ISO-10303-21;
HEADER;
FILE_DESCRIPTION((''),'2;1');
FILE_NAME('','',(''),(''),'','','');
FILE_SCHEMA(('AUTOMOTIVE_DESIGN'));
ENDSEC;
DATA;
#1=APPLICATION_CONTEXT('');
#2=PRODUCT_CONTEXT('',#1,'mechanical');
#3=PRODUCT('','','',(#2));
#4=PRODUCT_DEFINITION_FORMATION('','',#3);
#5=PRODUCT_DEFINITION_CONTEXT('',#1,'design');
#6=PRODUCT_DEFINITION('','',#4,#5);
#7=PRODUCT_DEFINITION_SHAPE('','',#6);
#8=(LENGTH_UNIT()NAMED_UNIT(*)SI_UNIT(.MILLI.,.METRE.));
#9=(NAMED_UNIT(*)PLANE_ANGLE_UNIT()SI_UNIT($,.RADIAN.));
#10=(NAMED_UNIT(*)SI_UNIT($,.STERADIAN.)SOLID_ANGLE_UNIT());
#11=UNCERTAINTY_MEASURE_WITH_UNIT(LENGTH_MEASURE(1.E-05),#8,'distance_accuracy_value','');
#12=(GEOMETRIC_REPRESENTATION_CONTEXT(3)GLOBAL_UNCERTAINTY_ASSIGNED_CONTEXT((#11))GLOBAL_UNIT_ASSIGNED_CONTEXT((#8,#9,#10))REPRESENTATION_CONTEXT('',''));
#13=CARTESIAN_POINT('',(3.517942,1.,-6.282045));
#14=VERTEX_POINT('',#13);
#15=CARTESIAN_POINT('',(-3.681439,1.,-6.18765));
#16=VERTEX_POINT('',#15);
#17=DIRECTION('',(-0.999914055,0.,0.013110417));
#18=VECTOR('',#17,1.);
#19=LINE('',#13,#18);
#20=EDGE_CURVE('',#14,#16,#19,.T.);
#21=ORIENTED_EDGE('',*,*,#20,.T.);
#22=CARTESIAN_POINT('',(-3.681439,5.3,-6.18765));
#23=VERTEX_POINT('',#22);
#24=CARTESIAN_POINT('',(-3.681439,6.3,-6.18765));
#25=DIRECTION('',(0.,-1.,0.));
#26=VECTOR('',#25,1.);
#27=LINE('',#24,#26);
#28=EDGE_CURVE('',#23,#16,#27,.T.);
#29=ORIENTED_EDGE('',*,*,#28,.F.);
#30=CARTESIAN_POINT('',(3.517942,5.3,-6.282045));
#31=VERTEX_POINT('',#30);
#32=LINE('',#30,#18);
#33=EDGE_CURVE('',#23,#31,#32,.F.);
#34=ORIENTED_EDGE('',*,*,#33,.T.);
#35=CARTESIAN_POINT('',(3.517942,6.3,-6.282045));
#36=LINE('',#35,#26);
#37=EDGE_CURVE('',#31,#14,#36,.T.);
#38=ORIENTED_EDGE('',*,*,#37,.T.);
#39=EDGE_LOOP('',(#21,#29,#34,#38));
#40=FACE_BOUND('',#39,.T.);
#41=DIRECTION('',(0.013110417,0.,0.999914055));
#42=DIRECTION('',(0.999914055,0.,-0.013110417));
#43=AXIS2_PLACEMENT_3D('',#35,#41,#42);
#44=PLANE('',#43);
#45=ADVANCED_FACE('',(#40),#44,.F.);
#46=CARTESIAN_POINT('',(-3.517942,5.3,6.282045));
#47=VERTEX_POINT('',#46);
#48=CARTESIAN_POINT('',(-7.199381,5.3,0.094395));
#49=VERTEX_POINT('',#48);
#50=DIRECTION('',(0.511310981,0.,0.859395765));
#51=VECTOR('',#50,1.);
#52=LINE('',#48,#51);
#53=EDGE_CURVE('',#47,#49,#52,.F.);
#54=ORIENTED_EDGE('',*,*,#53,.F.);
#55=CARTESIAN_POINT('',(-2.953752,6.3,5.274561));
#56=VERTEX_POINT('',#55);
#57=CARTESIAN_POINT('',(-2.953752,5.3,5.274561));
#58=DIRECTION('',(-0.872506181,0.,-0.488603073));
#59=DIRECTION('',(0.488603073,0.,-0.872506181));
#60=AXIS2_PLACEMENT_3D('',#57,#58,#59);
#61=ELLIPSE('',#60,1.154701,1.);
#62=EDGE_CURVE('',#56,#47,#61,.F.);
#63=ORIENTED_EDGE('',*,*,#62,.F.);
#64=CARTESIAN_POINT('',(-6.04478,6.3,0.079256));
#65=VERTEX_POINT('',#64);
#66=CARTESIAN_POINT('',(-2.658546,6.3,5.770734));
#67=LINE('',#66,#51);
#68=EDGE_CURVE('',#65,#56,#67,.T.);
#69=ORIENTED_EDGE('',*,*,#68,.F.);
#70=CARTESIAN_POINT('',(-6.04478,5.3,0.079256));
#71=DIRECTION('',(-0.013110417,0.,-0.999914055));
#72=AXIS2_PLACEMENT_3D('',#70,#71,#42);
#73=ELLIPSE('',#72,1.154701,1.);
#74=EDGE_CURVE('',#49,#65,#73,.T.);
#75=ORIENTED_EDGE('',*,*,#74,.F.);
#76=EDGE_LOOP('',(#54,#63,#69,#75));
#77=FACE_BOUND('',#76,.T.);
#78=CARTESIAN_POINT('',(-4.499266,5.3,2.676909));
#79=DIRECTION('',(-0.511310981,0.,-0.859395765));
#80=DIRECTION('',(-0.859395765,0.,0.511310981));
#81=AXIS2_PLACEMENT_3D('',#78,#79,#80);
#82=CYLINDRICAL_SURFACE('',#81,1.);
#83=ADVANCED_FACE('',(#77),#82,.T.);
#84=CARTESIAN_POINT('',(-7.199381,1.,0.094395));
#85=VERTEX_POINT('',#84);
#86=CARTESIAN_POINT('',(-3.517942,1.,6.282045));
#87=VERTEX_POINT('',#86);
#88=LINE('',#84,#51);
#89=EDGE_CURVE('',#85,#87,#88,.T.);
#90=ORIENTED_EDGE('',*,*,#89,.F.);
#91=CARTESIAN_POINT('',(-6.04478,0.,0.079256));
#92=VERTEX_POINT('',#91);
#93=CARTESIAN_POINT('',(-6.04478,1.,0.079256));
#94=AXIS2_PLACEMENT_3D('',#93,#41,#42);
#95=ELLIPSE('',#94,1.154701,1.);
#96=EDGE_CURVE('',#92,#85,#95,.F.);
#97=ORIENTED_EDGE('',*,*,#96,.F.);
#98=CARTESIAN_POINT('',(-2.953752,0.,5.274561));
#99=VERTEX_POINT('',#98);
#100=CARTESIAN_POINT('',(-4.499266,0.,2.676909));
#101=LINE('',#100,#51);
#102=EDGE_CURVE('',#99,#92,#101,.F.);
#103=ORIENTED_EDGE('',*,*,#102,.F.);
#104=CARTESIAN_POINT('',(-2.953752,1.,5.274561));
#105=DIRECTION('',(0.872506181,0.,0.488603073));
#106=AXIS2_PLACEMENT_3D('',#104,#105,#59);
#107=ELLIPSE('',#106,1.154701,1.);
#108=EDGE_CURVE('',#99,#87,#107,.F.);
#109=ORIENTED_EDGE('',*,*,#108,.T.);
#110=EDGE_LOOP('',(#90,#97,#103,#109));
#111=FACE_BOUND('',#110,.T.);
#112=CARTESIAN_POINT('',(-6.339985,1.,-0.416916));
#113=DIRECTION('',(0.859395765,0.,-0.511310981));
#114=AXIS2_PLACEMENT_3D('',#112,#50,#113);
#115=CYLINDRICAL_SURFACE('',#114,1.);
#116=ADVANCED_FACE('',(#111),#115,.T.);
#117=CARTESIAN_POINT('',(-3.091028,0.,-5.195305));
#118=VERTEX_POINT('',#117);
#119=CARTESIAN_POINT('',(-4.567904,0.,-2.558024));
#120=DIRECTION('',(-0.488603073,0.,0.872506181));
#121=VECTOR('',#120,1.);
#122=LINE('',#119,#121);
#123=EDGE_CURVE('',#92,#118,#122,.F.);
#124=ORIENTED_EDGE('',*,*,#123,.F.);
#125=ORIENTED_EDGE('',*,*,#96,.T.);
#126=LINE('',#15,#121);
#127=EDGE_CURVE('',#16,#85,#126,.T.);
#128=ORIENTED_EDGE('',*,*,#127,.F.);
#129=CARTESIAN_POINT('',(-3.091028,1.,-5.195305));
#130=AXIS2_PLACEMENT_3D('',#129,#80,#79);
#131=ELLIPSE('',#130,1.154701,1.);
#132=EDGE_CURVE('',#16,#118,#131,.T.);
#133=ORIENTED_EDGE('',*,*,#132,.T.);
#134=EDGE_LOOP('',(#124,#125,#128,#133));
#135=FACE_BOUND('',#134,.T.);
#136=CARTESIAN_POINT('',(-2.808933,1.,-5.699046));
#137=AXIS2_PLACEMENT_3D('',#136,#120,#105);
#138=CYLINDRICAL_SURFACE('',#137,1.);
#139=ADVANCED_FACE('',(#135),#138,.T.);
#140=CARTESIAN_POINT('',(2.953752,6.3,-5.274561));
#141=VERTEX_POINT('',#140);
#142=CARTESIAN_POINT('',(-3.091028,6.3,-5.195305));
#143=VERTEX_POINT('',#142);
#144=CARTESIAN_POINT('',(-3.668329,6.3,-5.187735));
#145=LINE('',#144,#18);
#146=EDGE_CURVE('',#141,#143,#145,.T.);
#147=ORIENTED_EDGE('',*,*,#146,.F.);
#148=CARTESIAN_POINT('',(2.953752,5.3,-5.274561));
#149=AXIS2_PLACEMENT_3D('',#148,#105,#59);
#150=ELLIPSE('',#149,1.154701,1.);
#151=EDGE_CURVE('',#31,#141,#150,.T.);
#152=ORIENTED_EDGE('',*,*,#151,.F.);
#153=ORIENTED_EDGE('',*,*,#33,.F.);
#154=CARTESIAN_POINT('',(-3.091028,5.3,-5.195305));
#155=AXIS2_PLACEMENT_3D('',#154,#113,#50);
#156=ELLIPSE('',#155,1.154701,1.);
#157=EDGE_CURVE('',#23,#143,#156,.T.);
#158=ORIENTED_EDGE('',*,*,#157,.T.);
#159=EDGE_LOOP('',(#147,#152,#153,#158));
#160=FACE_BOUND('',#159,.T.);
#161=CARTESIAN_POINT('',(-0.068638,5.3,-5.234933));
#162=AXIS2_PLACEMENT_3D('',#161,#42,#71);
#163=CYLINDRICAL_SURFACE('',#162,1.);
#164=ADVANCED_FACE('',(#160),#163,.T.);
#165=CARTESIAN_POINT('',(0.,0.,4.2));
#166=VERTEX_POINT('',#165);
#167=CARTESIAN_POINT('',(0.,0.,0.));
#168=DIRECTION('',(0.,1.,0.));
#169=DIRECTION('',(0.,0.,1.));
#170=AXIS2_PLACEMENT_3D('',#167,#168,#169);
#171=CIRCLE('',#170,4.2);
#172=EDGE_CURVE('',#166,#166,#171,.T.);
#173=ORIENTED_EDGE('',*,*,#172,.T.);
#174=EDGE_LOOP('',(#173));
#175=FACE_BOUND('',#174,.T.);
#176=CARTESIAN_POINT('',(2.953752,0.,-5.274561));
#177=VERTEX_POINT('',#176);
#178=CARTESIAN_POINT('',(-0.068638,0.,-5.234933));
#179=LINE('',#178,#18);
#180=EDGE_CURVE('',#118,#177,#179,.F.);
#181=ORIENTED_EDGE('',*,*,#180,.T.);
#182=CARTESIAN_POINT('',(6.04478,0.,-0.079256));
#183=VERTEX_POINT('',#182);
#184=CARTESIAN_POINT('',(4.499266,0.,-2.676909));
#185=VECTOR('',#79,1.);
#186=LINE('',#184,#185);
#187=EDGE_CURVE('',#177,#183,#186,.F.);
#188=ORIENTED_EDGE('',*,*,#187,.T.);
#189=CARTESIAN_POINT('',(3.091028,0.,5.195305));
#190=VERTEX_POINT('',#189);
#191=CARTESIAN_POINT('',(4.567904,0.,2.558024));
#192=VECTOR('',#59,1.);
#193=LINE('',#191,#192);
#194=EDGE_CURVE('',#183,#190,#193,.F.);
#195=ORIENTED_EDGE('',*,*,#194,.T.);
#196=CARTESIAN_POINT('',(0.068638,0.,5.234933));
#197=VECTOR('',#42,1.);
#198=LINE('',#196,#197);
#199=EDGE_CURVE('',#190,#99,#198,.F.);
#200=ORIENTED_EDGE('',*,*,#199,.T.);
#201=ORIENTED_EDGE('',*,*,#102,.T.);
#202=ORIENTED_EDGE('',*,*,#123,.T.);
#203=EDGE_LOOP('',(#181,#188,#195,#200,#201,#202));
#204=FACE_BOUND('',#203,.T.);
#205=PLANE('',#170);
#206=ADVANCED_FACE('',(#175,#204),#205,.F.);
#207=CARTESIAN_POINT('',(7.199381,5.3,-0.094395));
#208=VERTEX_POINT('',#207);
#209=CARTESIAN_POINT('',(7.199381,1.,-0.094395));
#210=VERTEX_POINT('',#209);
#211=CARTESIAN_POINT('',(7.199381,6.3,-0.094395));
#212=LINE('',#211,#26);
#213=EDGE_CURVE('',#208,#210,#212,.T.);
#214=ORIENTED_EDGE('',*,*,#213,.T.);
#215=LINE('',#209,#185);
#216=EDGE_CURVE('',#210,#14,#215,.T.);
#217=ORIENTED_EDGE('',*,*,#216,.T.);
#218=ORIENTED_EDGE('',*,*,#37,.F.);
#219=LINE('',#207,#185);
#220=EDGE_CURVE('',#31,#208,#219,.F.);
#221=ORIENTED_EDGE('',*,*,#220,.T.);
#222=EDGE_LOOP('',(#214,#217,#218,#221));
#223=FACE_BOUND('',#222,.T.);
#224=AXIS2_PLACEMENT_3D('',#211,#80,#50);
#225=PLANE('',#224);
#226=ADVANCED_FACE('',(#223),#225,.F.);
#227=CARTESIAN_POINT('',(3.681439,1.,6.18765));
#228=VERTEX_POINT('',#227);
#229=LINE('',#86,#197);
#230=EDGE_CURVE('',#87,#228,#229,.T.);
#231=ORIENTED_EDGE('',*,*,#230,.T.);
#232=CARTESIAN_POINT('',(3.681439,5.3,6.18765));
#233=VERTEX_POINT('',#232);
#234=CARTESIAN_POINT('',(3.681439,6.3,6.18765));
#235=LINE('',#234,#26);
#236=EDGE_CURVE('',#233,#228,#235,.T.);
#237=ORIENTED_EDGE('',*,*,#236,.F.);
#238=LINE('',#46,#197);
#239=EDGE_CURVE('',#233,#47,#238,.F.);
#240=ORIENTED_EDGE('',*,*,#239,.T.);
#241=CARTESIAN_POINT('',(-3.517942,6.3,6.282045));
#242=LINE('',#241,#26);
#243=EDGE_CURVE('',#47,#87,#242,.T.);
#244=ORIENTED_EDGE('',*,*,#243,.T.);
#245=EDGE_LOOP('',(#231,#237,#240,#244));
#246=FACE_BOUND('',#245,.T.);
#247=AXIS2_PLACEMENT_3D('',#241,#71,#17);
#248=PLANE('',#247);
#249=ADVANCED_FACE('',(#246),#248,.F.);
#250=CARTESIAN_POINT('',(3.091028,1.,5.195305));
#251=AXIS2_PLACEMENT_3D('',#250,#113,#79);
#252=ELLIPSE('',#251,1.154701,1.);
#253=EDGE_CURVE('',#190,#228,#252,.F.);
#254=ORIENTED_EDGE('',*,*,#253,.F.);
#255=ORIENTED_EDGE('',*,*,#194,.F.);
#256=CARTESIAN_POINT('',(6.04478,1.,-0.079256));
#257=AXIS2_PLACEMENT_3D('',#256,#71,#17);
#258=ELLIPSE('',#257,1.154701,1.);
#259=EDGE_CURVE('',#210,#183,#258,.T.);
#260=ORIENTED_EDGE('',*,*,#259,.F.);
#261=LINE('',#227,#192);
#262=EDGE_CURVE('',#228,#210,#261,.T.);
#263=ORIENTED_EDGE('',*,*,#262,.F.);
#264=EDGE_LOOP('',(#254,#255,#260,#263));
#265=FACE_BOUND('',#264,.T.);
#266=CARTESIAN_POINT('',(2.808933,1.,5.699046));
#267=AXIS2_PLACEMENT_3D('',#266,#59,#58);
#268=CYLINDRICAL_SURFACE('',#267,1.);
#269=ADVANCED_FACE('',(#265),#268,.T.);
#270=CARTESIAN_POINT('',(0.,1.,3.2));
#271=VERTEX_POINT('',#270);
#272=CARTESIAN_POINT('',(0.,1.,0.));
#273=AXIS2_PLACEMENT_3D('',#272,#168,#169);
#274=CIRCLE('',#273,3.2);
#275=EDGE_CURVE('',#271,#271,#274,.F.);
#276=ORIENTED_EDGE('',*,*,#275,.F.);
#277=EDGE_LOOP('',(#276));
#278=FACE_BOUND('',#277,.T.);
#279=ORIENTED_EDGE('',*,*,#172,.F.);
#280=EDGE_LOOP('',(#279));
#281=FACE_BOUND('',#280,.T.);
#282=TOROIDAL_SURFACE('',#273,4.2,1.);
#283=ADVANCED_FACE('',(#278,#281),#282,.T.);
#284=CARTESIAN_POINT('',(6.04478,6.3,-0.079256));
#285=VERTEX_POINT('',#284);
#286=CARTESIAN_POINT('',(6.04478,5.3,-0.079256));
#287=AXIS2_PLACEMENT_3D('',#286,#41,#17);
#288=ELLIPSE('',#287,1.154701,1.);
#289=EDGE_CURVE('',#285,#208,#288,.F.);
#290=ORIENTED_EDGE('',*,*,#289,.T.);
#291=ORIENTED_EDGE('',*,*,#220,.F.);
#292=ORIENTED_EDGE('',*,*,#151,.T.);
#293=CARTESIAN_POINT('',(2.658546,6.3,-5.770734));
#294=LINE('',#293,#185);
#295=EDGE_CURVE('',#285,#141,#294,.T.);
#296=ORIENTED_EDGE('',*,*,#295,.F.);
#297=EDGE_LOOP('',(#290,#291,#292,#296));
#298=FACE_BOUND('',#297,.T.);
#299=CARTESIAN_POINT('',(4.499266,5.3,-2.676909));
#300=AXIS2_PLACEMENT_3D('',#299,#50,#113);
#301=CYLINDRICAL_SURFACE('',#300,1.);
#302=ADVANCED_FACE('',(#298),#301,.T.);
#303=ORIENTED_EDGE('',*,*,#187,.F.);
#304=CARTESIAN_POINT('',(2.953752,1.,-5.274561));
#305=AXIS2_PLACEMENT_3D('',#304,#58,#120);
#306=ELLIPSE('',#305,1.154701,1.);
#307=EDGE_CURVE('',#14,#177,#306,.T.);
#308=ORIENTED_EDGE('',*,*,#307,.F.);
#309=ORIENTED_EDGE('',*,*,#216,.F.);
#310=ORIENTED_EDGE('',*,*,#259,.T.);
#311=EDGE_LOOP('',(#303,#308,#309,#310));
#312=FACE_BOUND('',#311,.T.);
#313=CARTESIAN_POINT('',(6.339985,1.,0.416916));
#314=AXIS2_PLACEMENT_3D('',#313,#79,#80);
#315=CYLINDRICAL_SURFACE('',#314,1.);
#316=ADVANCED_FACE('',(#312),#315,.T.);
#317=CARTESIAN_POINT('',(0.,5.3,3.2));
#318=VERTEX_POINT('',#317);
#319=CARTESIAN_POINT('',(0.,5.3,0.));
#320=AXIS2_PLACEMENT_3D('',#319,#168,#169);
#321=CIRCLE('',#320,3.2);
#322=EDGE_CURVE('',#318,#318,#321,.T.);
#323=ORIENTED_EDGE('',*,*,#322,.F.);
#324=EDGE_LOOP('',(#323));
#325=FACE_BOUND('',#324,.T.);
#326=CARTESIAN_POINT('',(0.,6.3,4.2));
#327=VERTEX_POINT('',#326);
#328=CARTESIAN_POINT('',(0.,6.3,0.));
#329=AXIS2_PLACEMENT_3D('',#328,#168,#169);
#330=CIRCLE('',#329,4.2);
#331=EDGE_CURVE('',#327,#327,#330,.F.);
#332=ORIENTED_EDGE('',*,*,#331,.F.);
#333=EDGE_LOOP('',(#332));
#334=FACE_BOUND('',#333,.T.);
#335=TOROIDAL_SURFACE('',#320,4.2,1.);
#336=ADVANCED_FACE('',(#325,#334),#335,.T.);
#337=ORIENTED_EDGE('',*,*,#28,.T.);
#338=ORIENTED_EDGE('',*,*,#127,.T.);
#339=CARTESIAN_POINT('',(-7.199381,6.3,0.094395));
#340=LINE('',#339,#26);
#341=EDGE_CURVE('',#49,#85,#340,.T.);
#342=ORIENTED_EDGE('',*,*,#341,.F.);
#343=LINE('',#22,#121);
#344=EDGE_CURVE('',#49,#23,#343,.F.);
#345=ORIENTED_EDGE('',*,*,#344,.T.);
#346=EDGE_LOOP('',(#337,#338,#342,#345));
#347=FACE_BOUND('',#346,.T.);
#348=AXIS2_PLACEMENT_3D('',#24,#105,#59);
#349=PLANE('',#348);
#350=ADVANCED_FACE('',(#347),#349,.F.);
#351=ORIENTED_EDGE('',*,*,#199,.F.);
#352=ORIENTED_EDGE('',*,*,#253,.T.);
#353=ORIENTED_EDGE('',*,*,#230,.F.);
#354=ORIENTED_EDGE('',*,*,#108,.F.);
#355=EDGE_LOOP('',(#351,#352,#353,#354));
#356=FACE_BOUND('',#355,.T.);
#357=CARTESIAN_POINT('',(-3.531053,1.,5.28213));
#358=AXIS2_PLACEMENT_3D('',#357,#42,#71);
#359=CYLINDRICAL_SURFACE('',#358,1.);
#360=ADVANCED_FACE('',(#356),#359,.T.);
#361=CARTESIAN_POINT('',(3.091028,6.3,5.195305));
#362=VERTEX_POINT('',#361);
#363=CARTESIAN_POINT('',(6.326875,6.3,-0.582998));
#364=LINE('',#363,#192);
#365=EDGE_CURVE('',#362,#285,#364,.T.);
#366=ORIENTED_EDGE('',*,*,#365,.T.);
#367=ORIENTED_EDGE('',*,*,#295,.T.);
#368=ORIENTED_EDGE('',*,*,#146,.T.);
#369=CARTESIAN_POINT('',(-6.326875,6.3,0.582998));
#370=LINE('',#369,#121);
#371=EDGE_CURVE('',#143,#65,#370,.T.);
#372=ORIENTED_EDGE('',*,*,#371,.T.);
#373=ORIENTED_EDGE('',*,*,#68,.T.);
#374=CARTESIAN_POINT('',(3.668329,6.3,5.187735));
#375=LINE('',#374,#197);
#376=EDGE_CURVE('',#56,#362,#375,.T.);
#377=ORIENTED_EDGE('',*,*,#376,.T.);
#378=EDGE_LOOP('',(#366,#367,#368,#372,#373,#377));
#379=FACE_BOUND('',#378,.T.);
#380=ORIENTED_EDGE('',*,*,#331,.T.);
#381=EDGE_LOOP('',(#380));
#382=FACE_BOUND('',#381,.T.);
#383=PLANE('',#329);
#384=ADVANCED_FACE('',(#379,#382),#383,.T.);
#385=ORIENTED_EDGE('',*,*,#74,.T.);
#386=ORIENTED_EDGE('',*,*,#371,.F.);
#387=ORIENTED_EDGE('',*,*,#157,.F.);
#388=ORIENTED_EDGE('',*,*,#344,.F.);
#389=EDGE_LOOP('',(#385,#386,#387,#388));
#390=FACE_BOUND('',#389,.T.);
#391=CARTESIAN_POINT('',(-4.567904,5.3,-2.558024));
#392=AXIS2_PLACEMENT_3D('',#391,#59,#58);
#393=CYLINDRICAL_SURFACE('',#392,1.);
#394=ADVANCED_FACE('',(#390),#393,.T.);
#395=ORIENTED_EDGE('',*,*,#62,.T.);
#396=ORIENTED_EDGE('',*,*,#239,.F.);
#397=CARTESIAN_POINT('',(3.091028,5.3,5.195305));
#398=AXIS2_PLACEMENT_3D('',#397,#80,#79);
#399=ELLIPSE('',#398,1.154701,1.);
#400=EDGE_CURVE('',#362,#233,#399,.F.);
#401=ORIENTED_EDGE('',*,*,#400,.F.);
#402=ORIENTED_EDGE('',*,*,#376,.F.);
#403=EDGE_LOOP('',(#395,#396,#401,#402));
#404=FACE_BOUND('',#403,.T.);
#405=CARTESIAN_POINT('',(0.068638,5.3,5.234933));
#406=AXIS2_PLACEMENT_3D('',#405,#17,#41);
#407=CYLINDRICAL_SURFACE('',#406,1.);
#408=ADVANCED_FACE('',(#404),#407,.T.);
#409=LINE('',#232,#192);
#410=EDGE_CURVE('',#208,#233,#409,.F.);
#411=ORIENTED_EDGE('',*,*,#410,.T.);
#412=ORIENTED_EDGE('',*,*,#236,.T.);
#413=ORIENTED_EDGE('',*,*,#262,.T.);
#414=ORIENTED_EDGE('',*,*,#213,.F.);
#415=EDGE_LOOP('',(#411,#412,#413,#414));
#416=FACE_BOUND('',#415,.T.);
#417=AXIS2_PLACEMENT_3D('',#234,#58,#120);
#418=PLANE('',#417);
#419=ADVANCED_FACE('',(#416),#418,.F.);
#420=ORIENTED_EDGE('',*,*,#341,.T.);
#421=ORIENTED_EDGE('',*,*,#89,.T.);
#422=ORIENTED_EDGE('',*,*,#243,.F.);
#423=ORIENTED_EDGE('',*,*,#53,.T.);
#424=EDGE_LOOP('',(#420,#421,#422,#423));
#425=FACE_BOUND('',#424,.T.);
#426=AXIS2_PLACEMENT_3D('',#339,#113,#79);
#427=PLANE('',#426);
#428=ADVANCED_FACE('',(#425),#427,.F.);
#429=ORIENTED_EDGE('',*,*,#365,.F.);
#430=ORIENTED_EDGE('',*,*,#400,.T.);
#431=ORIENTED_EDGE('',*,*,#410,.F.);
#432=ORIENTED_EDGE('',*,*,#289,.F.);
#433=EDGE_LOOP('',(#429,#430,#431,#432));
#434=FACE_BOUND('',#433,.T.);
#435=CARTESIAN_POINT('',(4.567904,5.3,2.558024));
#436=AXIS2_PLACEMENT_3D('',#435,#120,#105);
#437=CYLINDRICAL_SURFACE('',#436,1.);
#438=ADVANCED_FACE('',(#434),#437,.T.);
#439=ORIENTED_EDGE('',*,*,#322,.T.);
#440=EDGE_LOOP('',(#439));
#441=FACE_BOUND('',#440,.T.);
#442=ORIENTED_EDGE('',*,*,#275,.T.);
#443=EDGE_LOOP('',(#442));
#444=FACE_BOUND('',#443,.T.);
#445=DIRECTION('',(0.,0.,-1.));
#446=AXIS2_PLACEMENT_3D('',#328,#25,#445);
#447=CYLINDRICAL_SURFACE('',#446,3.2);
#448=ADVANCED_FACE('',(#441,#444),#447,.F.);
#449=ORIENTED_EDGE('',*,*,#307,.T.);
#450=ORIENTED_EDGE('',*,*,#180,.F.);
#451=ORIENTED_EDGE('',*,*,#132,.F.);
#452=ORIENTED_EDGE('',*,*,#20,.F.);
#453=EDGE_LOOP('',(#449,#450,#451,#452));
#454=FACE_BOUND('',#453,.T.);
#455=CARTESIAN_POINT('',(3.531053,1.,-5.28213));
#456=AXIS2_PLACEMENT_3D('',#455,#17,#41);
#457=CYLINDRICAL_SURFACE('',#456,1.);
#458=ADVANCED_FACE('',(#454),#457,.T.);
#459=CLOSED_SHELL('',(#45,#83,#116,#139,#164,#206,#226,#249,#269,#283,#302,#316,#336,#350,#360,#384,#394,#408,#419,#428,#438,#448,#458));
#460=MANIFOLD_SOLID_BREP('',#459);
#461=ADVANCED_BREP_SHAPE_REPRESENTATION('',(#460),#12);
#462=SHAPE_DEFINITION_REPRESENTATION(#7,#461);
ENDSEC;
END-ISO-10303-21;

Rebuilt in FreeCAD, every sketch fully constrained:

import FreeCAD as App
import Part
import Sketcher

V = App.Vector
Q = App.Units.Quantity


def edges_at(feature, points):
    """Names of the edges that pass closest to the given points."""
    edges = feature.Shape.Edges
    near = lambda p: min(range(len(edges)), key=lambda i: edges[i].distToShape(Part.Vertex(*p))[0])
    return sorted({f"Edge{near(p) + 1}" for p in points})


def add_polygon(sketch, points):
    """Adds a closed chain of lines whose ends are joined by coincident constraints."""
    first, n = sketch.GeometryCount, len(points)
    for a, b in zip(points, points[1:] + points[:1]):
        sketch.addGeometry(Part.LineSegment(App.Vector(*a, 0), App.Vector(*b, 0)), False)
    for i in range(n):
        sketch.addConstraint(Sketcher.Constraint("Coincident", first + i, 2, first + (i + 1) % n, 1))

doc = App.newDocument("Part")
body = doc.addObject("PartDesign::Body", "Body")

sketch1 = body.newObject("Sketcher::SketchObject", "Sketch")
sketch1.AttachmentSupport = (doc.getObject("XZ_Plane"), [""])
sketch1.MapMode = "FlatFace"
add_polygon(sketch1, [(-3.7, -6.2), (-7.2, 0.1), (-3.5, 6.3), (3.7, 6.2), (7.2, -0.1), (3.5, -6.3)])
sketch1.addGeometry(Part.Circle(V(0, 0, 0), V(0, 0, 1), 3.2), False)
sketch1.addConstraint(Sketcher.Constraint("Coincident", 6, 3, -1, 1))
sketch1.addConstraint(Sketcher.Constraint("Symmetric", 0, 2, 3, 2, -1, 1))
sketch1.addConstraint(Sketcher.Constraint("Symmetric", 1, 2, 4, 2, -1, 1))
sketch1.addConstraint(Sketcher.Constraint("Symmetric", 2, 2, 5, 2, -1, 1))
sketch1.addConstraint(Sketcher.Constraint("Equal", 0, 1))
sketch1.addConstraint(Sketcher.Constraint("Equal", 1, 2))
sketch1.addConstraint(Sketcher.Constraint("Diameter", 6, Q("6.4 mm")))
sketch1.addConstraint(Sketcher.Constraint("Distance", 0, Q("7.2 mm")))
sketch1.addConstraint(Sketcher.Constraint("DistanceX", 0, 2, -1, 1, Q("7.199381 mm")))
sketch1.addConstraint(Sketcher.Constraint("DistanceX", -1, 1, 2, 2, Q("3.681439 mm")))
sketch1.addConstraint(Sketcher.Constraint("DistanceY", -1, 1, 2, 2, Q("6.18765 mm")))
pad1 = body.newObject("PartDesign::Pad", "Pad")
pad1.Profile = sketch1
pad1.Length = 6.3
pad1.Reversed = True
doc.recompute()

fillet = body.newObject("PartDesign::Fillet", "Fillet")
fillet.Base = (pad1, edges_at(pad1, [
    (-5.359, 6.3, 3.188),
    (0.082, 6.3, 6.235),
    (5.44, 6.3, 3.047),
    (0, 0, -3.2),
    (0, 6.3, -3.2),
    (5.359, 6.3, -3.188),
    (-0.082, 6.3, -6.235),
    (5.359, 0, -3.188),
    (5.44, 0, 3.047),
    (0.082, 0, 6.235),
    (-5.44, 6.3, -3.047),
    (-5.359, 0, 3.188),
    (-5.44, 0, -3.047),
    (-0.082, 0, -6.235),
]))
fillet.Radius = 1

doc.recompute()
